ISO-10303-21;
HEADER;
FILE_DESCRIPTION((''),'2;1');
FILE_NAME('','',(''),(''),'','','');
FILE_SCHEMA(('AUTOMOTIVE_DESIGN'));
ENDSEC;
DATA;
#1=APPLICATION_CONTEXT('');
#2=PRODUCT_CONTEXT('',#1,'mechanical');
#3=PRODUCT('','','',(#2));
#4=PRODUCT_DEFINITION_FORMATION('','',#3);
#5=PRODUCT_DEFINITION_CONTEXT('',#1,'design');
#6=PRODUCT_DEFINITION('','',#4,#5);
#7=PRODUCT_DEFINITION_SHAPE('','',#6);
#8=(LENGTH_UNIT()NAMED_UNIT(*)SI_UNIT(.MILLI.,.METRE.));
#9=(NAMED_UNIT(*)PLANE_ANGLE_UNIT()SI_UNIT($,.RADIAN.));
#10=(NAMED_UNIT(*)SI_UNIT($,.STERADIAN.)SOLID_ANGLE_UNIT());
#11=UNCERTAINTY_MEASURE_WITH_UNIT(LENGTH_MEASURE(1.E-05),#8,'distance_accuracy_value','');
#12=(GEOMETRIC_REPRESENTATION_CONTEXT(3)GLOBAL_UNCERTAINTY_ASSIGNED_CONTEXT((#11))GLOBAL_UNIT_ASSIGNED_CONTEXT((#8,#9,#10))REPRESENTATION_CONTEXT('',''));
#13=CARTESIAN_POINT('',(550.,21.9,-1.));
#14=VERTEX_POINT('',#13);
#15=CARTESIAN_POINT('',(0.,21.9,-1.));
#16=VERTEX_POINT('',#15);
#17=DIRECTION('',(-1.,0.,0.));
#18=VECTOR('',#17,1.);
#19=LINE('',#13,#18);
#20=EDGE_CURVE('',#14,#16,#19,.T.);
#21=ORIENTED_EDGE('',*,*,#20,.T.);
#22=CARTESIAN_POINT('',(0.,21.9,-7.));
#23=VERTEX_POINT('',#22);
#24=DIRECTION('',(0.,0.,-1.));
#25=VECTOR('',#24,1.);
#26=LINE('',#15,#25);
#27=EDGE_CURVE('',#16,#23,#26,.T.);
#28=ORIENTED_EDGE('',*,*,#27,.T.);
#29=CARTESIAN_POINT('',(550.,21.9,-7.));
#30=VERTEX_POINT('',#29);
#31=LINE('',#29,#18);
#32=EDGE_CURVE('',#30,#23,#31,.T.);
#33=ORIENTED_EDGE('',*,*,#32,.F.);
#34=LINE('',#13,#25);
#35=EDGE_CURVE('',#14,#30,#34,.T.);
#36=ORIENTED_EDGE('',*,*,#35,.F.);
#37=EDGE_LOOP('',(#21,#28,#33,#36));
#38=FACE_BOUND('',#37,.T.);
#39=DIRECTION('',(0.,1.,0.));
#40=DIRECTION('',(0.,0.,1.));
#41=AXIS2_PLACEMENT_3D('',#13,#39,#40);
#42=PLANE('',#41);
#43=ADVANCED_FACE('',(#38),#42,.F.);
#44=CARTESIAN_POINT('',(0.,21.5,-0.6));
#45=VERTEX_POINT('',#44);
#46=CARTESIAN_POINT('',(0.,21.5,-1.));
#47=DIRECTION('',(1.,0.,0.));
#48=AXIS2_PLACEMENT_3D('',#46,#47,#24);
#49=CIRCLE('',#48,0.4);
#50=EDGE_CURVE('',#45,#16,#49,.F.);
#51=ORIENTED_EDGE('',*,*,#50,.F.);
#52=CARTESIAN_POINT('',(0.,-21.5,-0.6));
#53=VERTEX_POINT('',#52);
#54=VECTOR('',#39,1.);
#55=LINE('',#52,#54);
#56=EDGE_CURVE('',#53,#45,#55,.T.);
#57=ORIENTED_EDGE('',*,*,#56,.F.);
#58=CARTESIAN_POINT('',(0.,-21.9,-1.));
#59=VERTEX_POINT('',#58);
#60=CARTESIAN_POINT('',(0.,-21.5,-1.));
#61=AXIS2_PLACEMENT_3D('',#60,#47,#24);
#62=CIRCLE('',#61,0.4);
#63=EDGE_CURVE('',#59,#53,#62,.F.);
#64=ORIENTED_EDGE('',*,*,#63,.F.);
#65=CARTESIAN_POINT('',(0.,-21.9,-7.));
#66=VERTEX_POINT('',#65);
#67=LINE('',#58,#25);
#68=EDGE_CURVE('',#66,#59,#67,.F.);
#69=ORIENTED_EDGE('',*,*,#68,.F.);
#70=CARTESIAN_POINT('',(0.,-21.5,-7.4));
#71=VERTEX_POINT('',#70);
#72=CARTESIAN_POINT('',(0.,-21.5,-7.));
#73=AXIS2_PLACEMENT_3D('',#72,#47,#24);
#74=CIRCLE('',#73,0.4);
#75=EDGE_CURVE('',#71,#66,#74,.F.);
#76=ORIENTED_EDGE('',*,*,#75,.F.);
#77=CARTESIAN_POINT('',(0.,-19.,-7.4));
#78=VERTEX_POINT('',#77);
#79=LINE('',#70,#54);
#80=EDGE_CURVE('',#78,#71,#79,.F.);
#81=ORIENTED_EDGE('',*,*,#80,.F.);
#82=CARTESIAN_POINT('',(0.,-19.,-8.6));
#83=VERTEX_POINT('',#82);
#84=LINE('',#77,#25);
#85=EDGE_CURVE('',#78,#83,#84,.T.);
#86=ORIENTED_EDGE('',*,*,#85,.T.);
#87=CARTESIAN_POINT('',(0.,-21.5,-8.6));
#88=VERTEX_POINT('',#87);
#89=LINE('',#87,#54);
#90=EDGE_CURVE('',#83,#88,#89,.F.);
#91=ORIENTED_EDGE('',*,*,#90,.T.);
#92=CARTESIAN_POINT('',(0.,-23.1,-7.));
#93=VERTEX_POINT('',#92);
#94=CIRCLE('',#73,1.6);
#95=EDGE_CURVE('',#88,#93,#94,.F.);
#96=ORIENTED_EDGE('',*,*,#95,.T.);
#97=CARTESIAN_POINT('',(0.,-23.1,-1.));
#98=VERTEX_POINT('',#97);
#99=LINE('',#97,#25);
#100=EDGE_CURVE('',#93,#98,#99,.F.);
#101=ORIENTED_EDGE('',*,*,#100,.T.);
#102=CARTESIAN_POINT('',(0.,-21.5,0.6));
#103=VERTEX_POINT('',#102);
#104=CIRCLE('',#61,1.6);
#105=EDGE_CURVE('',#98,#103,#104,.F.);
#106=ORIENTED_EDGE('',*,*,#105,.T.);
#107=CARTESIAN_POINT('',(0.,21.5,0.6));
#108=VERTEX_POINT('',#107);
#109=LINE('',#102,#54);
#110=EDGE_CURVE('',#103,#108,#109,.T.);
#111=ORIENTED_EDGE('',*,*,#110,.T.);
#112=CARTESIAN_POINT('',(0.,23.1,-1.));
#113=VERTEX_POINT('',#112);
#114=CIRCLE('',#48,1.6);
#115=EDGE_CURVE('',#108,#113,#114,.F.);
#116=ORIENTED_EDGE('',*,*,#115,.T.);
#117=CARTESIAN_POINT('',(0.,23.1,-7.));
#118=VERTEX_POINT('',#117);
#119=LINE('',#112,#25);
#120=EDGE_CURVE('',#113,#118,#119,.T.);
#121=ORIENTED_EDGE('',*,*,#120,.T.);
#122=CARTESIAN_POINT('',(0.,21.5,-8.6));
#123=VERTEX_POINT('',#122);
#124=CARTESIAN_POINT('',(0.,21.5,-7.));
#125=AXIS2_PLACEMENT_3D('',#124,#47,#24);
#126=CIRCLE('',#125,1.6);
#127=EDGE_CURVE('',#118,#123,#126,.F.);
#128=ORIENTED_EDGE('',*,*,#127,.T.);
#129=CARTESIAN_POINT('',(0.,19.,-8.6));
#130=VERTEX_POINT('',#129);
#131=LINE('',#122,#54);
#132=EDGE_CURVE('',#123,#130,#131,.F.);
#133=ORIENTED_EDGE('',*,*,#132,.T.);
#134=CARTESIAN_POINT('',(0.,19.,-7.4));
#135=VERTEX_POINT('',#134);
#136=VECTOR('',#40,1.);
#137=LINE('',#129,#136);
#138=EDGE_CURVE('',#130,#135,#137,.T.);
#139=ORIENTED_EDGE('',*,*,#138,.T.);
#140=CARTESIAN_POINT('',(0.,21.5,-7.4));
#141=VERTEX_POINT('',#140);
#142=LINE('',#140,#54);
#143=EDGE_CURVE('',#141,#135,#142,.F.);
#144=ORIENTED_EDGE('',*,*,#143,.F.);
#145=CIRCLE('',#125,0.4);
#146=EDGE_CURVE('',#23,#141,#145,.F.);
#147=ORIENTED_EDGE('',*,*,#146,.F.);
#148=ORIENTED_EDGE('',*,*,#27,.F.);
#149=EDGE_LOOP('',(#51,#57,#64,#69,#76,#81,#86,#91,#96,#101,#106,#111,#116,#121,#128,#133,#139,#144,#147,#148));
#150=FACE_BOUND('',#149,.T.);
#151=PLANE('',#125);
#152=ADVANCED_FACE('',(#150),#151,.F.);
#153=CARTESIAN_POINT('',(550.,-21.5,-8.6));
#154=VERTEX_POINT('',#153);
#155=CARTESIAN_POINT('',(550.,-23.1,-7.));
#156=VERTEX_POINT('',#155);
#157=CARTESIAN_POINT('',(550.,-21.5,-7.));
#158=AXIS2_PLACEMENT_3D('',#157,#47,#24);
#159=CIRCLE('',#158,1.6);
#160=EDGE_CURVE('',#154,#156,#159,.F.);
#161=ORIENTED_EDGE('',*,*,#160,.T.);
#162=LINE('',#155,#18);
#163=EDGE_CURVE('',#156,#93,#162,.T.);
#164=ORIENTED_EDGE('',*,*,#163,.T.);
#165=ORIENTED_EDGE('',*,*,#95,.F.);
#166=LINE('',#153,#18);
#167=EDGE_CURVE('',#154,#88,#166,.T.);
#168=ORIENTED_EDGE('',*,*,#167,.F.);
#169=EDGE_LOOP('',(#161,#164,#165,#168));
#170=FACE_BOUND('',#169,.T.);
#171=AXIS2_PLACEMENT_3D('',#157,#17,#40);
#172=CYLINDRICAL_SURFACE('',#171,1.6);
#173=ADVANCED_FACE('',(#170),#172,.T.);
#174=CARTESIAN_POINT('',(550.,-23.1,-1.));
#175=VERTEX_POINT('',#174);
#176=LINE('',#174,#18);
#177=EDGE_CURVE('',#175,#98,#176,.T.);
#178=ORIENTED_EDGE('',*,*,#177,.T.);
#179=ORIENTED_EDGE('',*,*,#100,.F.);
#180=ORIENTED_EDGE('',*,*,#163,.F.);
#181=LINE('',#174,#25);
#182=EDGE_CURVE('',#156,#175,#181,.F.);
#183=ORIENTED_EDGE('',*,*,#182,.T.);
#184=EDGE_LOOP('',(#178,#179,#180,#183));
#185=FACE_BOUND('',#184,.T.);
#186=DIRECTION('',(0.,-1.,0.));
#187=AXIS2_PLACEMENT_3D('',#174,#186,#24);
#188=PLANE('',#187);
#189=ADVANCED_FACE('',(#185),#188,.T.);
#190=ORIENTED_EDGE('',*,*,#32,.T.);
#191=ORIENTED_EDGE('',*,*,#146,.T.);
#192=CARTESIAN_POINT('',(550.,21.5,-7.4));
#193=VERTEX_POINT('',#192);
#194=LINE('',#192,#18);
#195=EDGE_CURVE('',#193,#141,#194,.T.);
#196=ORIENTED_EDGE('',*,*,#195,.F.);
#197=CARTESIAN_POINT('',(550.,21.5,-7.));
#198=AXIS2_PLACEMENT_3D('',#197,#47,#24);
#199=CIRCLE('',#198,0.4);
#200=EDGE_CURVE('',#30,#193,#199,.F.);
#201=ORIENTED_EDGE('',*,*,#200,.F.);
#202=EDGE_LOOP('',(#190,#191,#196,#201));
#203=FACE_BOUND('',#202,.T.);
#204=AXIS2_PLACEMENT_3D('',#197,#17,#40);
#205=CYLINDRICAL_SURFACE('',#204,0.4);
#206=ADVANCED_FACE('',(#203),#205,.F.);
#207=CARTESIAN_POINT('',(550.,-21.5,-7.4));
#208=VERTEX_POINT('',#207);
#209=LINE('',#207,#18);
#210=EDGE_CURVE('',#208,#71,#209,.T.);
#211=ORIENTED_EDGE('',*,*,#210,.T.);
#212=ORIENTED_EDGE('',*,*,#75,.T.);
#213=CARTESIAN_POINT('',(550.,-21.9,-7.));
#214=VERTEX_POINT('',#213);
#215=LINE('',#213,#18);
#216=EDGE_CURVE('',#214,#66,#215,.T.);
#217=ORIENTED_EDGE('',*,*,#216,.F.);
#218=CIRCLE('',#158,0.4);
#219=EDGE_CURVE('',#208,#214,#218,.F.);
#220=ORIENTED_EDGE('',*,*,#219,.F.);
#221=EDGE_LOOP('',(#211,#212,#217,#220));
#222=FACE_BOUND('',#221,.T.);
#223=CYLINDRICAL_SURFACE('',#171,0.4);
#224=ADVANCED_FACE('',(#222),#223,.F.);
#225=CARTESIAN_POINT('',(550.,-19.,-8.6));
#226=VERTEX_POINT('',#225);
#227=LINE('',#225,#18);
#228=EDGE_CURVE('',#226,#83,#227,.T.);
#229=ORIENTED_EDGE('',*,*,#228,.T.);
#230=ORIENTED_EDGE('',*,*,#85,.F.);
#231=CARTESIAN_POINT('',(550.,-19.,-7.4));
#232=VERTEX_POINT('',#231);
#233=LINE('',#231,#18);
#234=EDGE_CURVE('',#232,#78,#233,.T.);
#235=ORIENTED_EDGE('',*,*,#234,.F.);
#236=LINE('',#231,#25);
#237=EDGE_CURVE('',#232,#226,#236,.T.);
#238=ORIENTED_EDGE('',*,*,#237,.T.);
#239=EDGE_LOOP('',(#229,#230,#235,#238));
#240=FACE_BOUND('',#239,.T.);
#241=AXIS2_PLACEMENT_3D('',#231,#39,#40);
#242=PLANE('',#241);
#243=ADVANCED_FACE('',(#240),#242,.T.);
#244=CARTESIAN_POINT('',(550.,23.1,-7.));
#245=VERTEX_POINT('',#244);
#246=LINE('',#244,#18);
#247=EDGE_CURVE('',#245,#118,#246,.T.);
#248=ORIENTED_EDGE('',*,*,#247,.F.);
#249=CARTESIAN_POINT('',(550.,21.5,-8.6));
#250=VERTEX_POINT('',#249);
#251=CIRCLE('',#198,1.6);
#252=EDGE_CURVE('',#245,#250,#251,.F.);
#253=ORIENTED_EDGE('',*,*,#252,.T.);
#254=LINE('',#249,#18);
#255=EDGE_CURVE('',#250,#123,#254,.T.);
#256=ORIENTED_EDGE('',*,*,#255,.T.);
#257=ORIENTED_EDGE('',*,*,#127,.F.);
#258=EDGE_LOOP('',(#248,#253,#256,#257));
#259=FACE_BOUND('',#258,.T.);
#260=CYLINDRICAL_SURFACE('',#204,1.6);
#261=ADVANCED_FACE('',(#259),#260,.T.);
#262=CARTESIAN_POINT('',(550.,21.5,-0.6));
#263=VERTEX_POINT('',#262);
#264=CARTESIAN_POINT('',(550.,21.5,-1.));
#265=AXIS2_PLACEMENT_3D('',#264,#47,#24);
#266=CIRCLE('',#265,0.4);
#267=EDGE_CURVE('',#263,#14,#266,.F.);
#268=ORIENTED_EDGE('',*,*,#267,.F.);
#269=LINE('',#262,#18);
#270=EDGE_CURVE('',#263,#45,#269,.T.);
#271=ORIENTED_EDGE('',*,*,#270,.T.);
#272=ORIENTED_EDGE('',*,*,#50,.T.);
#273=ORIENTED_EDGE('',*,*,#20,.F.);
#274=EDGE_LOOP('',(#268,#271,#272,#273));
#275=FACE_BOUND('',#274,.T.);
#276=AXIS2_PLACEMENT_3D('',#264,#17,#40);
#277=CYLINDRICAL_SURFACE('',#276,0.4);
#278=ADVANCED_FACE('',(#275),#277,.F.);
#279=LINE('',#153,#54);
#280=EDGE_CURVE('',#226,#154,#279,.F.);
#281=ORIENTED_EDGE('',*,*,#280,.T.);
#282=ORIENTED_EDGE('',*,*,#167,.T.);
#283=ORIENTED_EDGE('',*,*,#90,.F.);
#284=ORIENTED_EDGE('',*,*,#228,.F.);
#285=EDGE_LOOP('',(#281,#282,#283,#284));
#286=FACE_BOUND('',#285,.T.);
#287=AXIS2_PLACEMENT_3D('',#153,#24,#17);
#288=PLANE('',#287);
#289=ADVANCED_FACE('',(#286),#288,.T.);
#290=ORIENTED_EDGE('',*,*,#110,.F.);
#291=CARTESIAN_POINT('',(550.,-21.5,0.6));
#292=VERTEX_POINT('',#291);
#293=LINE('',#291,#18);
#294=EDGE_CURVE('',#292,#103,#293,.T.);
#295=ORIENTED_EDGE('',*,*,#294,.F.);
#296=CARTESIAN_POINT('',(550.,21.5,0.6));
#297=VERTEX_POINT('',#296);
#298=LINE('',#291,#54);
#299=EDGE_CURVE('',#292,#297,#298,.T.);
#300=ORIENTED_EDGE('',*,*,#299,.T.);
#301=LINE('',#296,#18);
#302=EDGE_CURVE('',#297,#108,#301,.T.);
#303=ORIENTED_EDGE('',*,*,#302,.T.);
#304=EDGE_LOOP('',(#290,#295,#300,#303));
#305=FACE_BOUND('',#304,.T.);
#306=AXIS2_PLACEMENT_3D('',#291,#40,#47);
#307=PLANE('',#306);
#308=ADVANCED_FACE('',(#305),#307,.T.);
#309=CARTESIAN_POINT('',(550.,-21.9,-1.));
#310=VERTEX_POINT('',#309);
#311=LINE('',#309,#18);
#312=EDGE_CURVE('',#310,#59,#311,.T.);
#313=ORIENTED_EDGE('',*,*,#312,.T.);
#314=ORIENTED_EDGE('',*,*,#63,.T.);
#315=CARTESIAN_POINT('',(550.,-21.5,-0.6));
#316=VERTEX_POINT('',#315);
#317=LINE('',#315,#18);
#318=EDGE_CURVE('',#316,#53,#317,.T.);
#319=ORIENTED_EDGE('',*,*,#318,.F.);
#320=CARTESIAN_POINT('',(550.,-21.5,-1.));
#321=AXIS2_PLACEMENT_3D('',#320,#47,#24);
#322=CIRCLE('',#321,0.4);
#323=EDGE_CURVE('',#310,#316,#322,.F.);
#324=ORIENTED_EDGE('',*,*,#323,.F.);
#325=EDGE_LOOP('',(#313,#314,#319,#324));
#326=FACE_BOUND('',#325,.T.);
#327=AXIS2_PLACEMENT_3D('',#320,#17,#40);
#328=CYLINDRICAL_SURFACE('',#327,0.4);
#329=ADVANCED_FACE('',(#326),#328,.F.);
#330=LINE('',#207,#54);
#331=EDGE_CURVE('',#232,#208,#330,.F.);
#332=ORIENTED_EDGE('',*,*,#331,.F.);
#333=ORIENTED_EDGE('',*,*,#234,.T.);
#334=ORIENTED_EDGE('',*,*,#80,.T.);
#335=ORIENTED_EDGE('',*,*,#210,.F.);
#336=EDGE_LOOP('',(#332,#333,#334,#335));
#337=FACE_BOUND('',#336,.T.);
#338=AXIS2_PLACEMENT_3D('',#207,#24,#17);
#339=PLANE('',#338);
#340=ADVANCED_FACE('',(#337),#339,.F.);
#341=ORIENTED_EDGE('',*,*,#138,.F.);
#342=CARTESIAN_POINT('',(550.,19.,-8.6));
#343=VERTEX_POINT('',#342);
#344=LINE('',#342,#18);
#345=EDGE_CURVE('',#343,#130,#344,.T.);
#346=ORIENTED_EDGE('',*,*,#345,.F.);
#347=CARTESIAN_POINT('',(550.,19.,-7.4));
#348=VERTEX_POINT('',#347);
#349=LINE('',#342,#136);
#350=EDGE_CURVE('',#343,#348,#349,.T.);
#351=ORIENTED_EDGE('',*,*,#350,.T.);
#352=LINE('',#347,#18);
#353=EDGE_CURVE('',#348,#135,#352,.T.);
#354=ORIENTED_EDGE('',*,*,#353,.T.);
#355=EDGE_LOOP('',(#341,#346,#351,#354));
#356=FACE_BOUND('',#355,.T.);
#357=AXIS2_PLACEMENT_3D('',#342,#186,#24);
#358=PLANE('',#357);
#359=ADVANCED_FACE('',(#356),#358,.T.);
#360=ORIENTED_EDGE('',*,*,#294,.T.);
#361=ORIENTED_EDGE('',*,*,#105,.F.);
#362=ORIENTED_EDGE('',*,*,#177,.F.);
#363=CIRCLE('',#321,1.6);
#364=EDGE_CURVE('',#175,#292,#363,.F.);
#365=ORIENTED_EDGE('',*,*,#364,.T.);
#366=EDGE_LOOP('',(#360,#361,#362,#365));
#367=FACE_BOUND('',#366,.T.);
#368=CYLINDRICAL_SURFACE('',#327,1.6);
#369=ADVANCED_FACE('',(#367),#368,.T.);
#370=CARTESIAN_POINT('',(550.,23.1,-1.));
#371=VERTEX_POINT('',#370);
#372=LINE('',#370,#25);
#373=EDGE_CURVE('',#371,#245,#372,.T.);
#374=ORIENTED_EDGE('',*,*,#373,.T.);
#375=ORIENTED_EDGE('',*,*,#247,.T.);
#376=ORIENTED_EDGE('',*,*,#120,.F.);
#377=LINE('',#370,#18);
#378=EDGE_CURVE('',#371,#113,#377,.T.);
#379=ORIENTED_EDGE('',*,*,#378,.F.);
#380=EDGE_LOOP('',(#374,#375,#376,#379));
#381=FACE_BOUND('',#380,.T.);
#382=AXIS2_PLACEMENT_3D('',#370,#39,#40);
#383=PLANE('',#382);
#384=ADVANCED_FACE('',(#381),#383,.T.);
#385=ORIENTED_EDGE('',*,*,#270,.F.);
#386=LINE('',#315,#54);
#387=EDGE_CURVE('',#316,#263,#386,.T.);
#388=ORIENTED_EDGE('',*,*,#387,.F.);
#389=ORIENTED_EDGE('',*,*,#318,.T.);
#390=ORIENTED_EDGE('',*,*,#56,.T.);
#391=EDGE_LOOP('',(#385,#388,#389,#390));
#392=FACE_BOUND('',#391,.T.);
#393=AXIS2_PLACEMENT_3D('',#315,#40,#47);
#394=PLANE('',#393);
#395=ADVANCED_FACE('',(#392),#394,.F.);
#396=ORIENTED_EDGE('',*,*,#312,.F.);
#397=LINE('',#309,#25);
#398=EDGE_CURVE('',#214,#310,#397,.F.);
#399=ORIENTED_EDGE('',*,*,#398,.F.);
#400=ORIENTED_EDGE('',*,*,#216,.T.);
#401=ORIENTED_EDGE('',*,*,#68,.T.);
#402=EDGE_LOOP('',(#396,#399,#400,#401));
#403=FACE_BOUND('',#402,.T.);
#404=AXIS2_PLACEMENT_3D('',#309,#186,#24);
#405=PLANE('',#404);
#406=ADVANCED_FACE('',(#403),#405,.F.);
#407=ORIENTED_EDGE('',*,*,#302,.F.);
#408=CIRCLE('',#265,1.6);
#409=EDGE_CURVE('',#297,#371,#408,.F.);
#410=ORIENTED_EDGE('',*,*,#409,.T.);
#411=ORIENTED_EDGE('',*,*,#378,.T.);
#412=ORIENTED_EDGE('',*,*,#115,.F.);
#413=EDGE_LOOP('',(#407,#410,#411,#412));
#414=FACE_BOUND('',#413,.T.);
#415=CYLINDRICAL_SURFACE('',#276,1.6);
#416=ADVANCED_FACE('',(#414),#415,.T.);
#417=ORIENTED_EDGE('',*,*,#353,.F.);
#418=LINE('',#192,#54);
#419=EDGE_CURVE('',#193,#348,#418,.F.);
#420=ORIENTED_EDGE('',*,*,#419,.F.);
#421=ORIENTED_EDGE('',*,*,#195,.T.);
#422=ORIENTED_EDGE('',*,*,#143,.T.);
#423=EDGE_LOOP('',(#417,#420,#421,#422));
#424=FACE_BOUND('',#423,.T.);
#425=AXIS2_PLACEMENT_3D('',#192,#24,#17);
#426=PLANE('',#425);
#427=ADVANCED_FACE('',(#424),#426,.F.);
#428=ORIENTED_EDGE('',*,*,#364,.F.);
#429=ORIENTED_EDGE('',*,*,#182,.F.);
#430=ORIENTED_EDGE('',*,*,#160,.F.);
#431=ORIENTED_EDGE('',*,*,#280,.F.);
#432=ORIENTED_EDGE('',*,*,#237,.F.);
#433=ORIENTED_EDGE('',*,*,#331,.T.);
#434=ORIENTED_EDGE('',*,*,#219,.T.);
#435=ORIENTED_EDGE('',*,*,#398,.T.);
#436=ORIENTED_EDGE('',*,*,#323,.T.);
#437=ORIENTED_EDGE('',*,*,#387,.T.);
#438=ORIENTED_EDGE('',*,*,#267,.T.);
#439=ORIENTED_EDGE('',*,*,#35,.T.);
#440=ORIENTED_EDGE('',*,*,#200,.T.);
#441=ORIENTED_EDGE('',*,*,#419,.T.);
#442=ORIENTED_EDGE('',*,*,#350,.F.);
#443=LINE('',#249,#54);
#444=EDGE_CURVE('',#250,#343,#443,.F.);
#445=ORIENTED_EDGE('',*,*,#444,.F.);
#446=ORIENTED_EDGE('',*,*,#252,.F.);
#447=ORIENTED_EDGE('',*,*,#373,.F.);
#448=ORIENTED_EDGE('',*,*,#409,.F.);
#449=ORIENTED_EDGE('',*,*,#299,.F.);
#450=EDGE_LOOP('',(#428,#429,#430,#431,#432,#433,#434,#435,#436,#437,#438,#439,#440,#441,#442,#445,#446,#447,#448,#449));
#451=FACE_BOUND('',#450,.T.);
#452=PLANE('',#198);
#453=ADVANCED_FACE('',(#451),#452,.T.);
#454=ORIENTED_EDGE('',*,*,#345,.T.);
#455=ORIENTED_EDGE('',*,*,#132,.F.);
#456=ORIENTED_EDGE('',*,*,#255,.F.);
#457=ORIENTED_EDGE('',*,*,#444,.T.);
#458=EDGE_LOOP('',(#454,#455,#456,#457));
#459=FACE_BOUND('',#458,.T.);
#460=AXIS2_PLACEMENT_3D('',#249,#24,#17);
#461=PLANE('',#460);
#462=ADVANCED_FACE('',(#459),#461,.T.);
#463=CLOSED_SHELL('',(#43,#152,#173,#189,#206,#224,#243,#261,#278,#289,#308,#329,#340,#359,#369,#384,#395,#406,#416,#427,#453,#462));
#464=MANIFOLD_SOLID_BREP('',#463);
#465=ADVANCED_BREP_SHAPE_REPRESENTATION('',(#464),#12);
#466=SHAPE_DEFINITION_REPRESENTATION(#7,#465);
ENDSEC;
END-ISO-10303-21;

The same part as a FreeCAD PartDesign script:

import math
import FreeCAD as App
import Part
import Sketcher
from FreeCAD import Vector
Q = App.Units.Quantity

doc = App.newDocument("Part")
body = doc.addObject("PartDesign::Body", "Body")

# Sketch on YZ plane
sketch1 = doc.addObject("Sketcher::SketchObject", "Sketch")
body.addObject(sketch1)
sketch1.AttachmentSupport = (doc.YZ_Plane, [""])
sketch1.MapMode = "FlatFace"
sketch1.addGeometry([
    Part.LineSegment(Vector(-19, -7.4, 0), Vector(-21.5, -7.4, 0)),  # 0
    Part.ArcOfCircle(Part.Circle(Vector(-21.5, -7, 0), Vector(0, 0, 1), 0.4), math.radians(-180), math.radians(-90)),  # 1
    Part.LineSegment(Vector(-21.9, -7, 0), Vector(-21.9, -1, 0)),  # 2
    Part.ArcOfCircle(Part.Circle(Vector(-21.5, -1, 0), Vector(0, 0, 1), 0.4), math.radians(90), math.radians(180)),  # 3
    Part.LineSegment(Vector(-21.5, -0.6, 0), Vector(21.5, -0.6, 0)),  # 4
    Part.ArcOfCircle(Part.Circle(Vector(21.5, -1, 0), Vector(0, 0, 1), 0.4), math.radians(0), math.radians(90)),  # 5
    Part.LineSegment(Vector(21.9, -1, 0), Vector(21.9, -7, 0)),  # 6
    Part.ArcOfCircle(Part.Circle(Vector(21.5, -7, 0), Vector(0, 0, 1), 0.4), math.radians(-90), math.radians(0)),  # 7
    Part.LineSegment(Vector(21.5, -7.4, 0), Vector(19, -7.4, 0)),  # 8
    Part.LineSegment(Vector(19, -7.4, 0), Vector(19, -8.6, 0)),  # 9
    Part.LineSegment(Vector(19, -8.6, 0), Vector(21.5, -8.6, 0)),  # 10
    Part.ArcOfCircle(Part.Circle(Vector(21.5, -7, 0), Vector(0, 0, 1), 1.6), math.radians(-90), math.radians(0)),  # 11
    Part.LineSegment(Vector(23.1, -7, 0), Vector(23.1, -1, 0)),  # 12
    Part.ArcOfCircle(Part.Circle(Vector(21.5, -1, 0), Vector(0, 0, 1), 1.6), math.radians(0), math.radians(90)),  # 13
    Part.LineSegment(Vector(21.5, 0.6, 0), Vector(-21.5, 0.6, 0)),  # 14
    Part.ArcOfCircle(Part.Circle(Vector(-21.5, -1, 0), Vector(0, 0, 1), 1.6), math.radians(90), math.radians(180)),  # 15
    Part.LineSegment(Vector(-23.1, -1, 0), Vector(-23.1, -7, 0)),  # 16
    Part.ArcOfCircle(Part.Circle(Vector(-21.5, -7, 0), Vector(0, 0, 1), 1.6), math.radians(180), math.radians(270)),  # 17
    Part.LineSegment(Vector(-21.5, -8.6, 0), Vector(-19, -8.6, 0)),  # 18
    Part.LineSegment(Vector(-19, -8.6, 0), Vector(-19, -7.4, 0)),  # 19
], False)
sketch1.addConstraint([
    Sketcher.Constraint("Tangent", 0, 2, 1, 2),
    Sketcher.Constraint("Tangent", 1, 1, 2, 1),
    Sketcher.Constraint("Tangent", 2, 2, 3, 2),
    Sketcher.Constraint("Tangent", 3, 1, 4, 1),
    Sketcher.Constraint("Tangent", 4, 2, 5, 2),
    Sketcher.Constraint("Tangent", 5, 1, 6, 1),
    Sketcher.Constraint("Tangent", 6, 2, 7, 2),
    Sketcher.Constraint("Tangent", 7, 1, 8, 1),
    Sketcher.Constraint("Coincident", 8, 2, 9, 1),
    Sketcher.Constraint("Coincident", 9, 2, 10, 1),
    Sketcher.Constraint("Tangent", 10, 2, 11, 1),
    Sketcher.Constraint("Tangent", 11, 2, 12, 1),
    Sketcher.Constraint("Tangent", 12, 2, 13, 1),
    Sketcher.Constraint("Tangent", 13, 2, 14, 1),
    Sketcher.Constraint("Tangent", 14, 2, 15, 1),
    Sketcher.Constraint("Tangent", 15, 2, 16, 1),
    Sketcher.Constraint("Tangent", 16, 2, 17, 1),
    Sketcher.Constraint("Tangent", 17, 2, 18, 1),
    Sketcher.Constraint("Coincident", 18, 2, 19, 1),
    Sketcher.Constraint("Coincident", 19, 2, 0, 1),
    Sketcher.Constraint("Horizontal", 0),
    Sketcher.Constraint("Vertical", 2),
    Sketcher.Constraint("Horizontal", 4),
    Sketcher.Constraint("Vertical", 6),
    Sketcher.Constraint("Horizontal", 8),
    Sketcher.Constraint("Vertical", 9),
    Sketcher.Constraint("Horizontal", 10),
    Sketcher.Constraint("Vertical", 12),
    Sketcher.Constraint("Horizontal", 14),
    Sketcher.Constraint("Vertical", 16),
    Sketcher.Constraint("Horizontal", 18),
    Sketcher.Constraint("Vertical", 19),
    Sketcher.Constraint("Coincident", 11, 3, 7, 3),
    Sketcher.Constraint("Coincident", 13, 3, 5, 3),
    Sketcher.Constraint("Coincident", 15, 3, 3, 3),
    Sketcher.Constraint("Coincident", 17, 3, 1, 3),
    Sketcher.Constraint("Equal", 1, 3),
    Sketcher.Constraint("Equal", 3, 5),
    Sketcher.Constraint("Equal", 5, 7),
    Sketcher.Constraint("Symmetric", 3, 1, 13, 2, -1, 1),
    Sketcher.Constraint("Symmetric", 9, 2, 18, 2, -2),
    Sketcher.Constraint("Radius", 1, Q("0.4 mm")),
    Sketcher.Constraint("Radius", 11, Q("1.6 mm")),
    Sketcher.Constraint("DistanceX", 4, 1, 4, 2, Q("43 mm")),
    Sketcher.Constraint("DistanceY", 2, 1, 2, 2, Q("6 mm")),
    Sketcher.Constraint("DistanceX", 0, 2, 0, 1, Q("2.5 mm")),
])
pad1 = doc.addObject("PartDesign::Pad", "Pad")
body.addObject(pad1)
pad1.Profile = sketch1
pad1.Length = 550

doc.recompute()
